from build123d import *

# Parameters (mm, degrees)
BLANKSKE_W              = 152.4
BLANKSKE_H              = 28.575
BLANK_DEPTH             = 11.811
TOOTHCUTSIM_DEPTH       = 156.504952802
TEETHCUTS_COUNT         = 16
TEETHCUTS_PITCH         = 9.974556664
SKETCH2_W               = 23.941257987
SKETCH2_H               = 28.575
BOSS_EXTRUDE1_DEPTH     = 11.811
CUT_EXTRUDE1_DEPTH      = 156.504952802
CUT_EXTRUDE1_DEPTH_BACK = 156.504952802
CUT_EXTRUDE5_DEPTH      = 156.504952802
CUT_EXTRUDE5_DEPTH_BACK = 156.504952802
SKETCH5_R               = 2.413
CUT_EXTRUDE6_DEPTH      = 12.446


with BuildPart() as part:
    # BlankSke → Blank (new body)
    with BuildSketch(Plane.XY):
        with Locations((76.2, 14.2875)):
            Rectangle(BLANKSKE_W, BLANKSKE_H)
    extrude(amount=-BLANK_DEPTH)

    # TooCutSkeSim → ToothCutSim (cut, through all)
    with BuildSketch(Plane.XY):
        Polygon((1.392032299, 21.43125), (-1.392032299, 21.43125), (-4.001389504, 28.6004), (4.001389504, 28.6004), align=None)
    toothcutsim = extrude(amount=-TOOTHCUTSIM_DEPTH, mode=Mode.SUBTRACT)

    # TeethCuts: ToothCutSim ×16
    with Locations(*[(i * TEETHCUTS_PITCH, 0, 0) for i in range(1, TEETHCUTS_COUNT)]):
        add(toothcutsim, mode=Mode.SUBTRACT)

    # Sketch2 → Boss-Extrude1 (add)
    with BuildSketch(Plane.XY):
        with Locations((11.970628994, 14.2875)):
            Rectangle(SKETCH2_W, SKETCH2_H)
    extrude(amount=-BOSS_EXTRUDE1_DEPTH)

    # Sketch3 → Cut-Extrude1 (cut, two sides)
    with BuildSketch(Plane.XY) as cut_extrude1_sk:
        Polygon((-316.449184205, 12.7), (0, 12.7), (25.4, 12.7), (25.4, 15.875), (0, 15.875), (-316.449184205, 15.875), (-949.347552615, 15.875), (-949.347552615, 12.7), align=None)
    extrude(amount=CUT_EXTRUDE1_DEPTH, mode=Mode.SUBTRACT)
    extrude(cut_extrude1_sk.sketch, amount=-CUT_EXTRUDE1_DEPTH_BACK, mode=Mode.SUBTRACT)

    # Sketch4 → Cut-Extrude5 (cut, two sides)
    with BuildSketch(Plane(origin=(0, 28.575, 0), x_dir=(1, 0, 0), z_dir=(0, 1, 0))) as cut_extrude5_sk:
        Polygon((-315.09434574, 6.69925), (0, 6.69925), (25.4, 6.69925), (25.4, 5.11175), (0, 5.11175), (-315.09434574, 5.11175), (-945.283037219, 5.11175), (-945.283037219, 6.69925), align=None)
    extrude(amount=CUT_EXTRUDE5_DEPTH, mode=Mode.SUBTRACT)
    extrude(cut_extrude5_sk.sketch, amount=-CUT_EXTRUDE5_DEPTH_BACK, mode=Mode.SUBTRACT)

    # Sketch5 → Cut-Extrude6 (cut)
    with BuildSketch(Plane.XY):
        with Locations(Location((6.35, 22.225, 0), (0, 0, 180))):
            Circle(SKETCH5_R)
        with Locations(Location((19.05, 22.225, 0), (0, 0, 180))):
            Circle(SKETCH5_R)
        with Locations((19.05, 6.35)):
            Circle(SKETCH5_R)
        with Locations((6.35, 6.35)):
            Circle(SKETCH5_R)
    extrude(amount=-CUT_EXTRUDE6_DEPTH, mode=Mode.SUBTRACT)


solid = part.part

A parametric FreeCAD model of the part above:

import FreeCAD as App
import Part
import Sketcher
from FreeCAD import Vector
Q = App.Units.Quantity

doc = App.newDocument("Part")
body = doc.addObject("PartDesign::Body", "Body")

sketch1 = body.newObject("Sketcher::SketchObject", "Sketch")
sketch1.AttachmentSupport = (doc.getObject("XY_Plane"), [""])
sketch1.MapMode = "FlatFace"
sketch1.addGeometry([
    Part.LineSegment(Vector(0, 29, 0), Vector(0, 0, 0)),
    Part.LineSegment(Vector(0, 0, 0), Vector(152, 0, 0)),
    Part.LineSegment(Vector(152, 0, 0), Vector(152, 29, 0)),
    Part.LineSegment(Vector(152, 29, 0), Vector(0, 29, 0)),
], False)
sketch1.addConstraint([
    Sketcher.Constraint("Coincident", 0, 2, 1, 1),
    Sketcher.Constraint("Coincident", 1, 2, 2, 1),
    Sketcher.Constraint("Coincident", 2, 2, 3, 1),
    Sketcher.Constraint("Coincident", 3, 2, 0, 1),
    Sketcher.Constraint("Vertical", 0),
    Sketcher.Constraint("Horizontal", 1),
    Sketcher.Constraint("Vertical", 2),
    Sketcher.Constraint("Horizontal", 3),
    Sketcher.Constraint("Coincident", 0, 2, -1, 1),
    Sketcher.Constraint("DistanceX", 1, 1, 1, 2, Q("6 in")),
    Sketcher.Constraint("DistanceY", 0, 2, 0, 1, Q("1.125 in")),
])
pad1 = body.newObject("PartDesign::Pad", "Pad")
pad1.Profile = sketch1
pad1.Length = Q("0.465 in")
pad1.Reversed = True

sketch2 = body.newObject("Sketcher::SketchObject", "Sketch001")
sketch2.AttachmentSupport = (doc.getObject("XY_Plane"), [""])
sketch2.MapMode = "FlatFace"
sketch2.addGeometry([
    Part.LineSegment(Vector(-1.4, 21.4, 0), Vector(1.4, 21.4, 0)),
    Part.LineSegment(Vector(1.4, 21.4, 0), Vector(4, 28.6, 0)),
    Part.LineSegment(Vector(4, 28.6, 0), Vector(-4, 28.6, 0)),
    Part.LineSegment(Vector(-4, 28.6, 0), Vector(-1.4, 21.4, 0)),
], False)
sketch2.addConstraint([
    Sketcher.Constraint("Coincident", 0, 2, 1, 1),
    Sketcher.Constraint("Coincident", 1, 2, 2, 1),
    Sketcher.Constraint("Coincident", 2, 2, 3, 1),
    Sketcher.Constraint("Coincident", 3, 2, 0, 1),
    Sketcher.Constraint("Horizontal", 0),
    Sketcher.Constraint("Horizontal", 2),
    Sketcher.Constraint("Equal", 1, 3),
    Sketcher.Constraint("Angle", 1, Q("70 deg")),
    Sketcher.Constraint("DistanceY", -1, 1, 0, 2, Q("0.84375 in")),
    Sketcher.Constraint("DistanceY", -1, 1, 1, 2, Q("1.126 in")),
    Sketcher.Constraint("DistanceX", 2, 2, 2, 1, 8.002779),
    Sketcher.Constraint("DistanceX", -1, 1, 1, 2, 4.00139),
])
pocket1 = body.newObject("PartDesign::Pocket", "Pocket")
pocket1.Profile = sketch2
pocket1.Type = "ThroughAll"
doc.recompute()

linearpattern = body.newObject("PartDesign::LinearPattern", "LinearPattern")
linearpattern.Originals = [pocket1]
linearpattern.Direction = (doc.getObject("X_Axis"), [""])
linearpattern.Mode = "offset"
linearpattern.Offset = 9.974557
linearpattern.Occurrences = 16
body.Tip = linearpattern

sketch3 = body.newObject("Sketcher::SketchObject", "Sketch002")
sketch3.AttachmentSupport = (doc.getObject("XY_Plane"), [""])
sketch3.MapMode = "FlatFace"
sketch3.addGeometry([
    Part.LineSegment(Vector(0, 29, 0), Vector(0, 0, 0)),
    Part.LineSegment(Vector(0, 0, 0), Vector(24, 0, 0)),
    Part.LineSegment(Vector(24, 0, 0), Vector(24, 29, 0)),
    Part.LineSegment(Vector(24, 29, 0), Vector(0, 29, 0)),
], False)
sketch3.addConstraint([
    Sketcher.Constraint("Coincident", 0, 2, 1, 1),
    Sketcher.Constraint("Coincident", 1, 2, 2, 1),
    Sketcher.Constraint("Coincident", 2, 2, 3, 1),
    Sketcher.Constraint("Coincident", 3, 2, 0, 1),
    Sketcher.Constraint("Vertical", 0),
    Sketcher.Constraint("Horizontal", 1),
    Sketcher.Constraint("Vertical", 2),
    Sketcher.Constraint("Horizontal", 3),
    Sketcher.Constraint("Coincident", 0, 2, -1, 1),
    Sketcher.Constraint("DistanceY", 0, 2, 0, 1, Q("1.125 in")),
    Sketcher.Constraint("DistanceX", 1, 1, 1, 2, 23.941258),
])
pad2 = body.newObject("PartDesign::Pad", "Pad001")
pad2.Profile = sketch3
pad2.Length = Q("0.465 in")
pad2.Reversed = True

sketch4 = body.newObject("Sketcher::SketchObject", "Sketch003")
sketch4.AttachmentSupport = (doc.getObject("XY_Plane"), [""])
sketch4.MapMode = "FlatFace"
sketch4.addGeometry([
    Part.LineSegment(Vector(25.4, 12.7, 0), Vector(25.4, 15.9, 0)),
    Part.LineSegment(Vector(25.4, 15.9, 0), Vector(-949.3, 15.9, 0)),
    Part.LineSegment(Vector(-949.3, 15.9, 0), Vector(-949.3, 12.7, 0)),
    Part.LineSegment(Vector(-949.3, 12.7, 0), Vector(25.4, 12.7, 0)),
], False)
sketch4.addConstraint([
    Sketcher.Constraint("Coincident", 0, 2, 1, 1),
    Sketcher.Constraint("Coincident", 1, 2, 2, 1),
    Sketcher.Constraint("Coincident", 2, 2, 3, 1),
    Sketcher.Constraint("Coincident", 3, 2, 0, 1),
    Sketcher.Constraint("Vertical", 0),
    Sketcher.Constraint("Horizontal", 1),
    Sketcher.Constraint("Vertical", 2),
    Sketcher.Constraint("Horizontal", 3),
    Sketcher.Constraint("DistanceX", -1, 1, 0, 2, Q("1 in")),
    Sketcher.Constraint("DistanceY", -1, 1, 2, 2, Q("0.5 in")),
    Sketcher.Constraint("DistanceY", 0, 1, 0, 2, Q("0.125 in")),
    Sketcher.Constraint("DistanceX", 1, 2, 1, 1, 974.747553),
])
pocket2 = body.newObject("PartDesign::Pocket", "Pocket001")
pocket2.Profile = sketch4
pocket2.Type = "ThroughAll"
pocket2.Midplane = True

sketch5 = body.newObject("Sketcher::SketchObject", "Sketch004")
sketch5.AttachmentSupport = (doc.getObject("XZ_Plane"), [""])
sketch5.MapMode = "FlatFace"
sketch5.AttachmentOffset = App.Placement(Vector(0, 0, -1.125 * 25.4), App.Rotation())
sketch5.addGeometry([
    Part.LineSegment(Vector(25.4, -6.7, 0), Vector(-945.3, -6.7, 0)),
    Part.LineSegment(Vector(-945.3, -6.7, 0), Vector(-945.3, -5.1, 0)),
    Part.LineSegment(Vector(-945.3, -5.1, 0), Vector(25.4, -5.1, 0)),
    Part.LineSegment(Vector(25.4, -5.1, 0), Vector(25.4, -6.7, 0)),
], False)
sketch5.addConstraint([
    Sketcher.Constraint("Coincident", 0, 2, 1, 1),
    Sketcher.Constraint("Coincident", 1, 2, 2, 1),
    Sketcher.Constraint("Coincident", 2, 2, 3, 1),
    Sketcher.Constraint("Coincident", 3, 2, 0, 1),
    Sketcher.Constraint("Horizontal", 0),
    Sketcher.Constraint("Vertical", 1),
    Sketcher.Constraint("Horizontal", 2),
    Sketcher.Constraint("Vertical", 3),
    Sketcher.Constraint("DistanceX", -1, 1, 2, 2, Q("1 in")),
    Sketcher.Constraint("DistanceY", 1, 1, 1, 2, Q("0.0625 in")),
    Sketcher.Constraint("DistanceX", 0, 2, 0, 1, 970.683037),
    Sketcher.Constraint("DistanceY", 0, 2, -1, 1, 6.69925),
])
pocket3 = body.newObject("PartDesign::Pocket", "Pocket002")
pocket3.Profile = sketch5
pocket3.Type = "ThroughAll"
pocket3.Midplane = True

sketch6 = body.newObject("Sketcher::SketchObject", "Sketch005")
sketch6.AttachmentSupport = (doc.getObject("XY_Plane"), [""])
sketch6.MapMode = "FlatFace"
sketch6.addGeometry([
    Part.Circle(Vector(6.3, 22.2, 0), Vector(0, 0, 1), 2.4),
    Part.Circle(Vector(19.1, 22.2, 0), Vector(0, 0, 1), 2.4),
    Part.Circle(Vector(19.1, 6.3, 0), Vector(0, 0, 1), 2.4),
    Part.Circle(Vector(6.3, 6.3, 0), Vector(0, 0, 1), 2.4),
], False)
sketch6.addConstraint([
    Sketcher.Constraint("Equal", 0, 1),
    Sketcher.Constraint("Equal", 1, 2),
    Sketcher.Constraint("Equal", 2, 3),
    Sketcher.Constraint("Horizontal", 0, 3, 1, 3),
    Sketcher.Constraint("Horizontal", 2, 3, 3, 3),
    Sketcher.Constraint("Vertical", 1, 3, 2, 3),
    Sketcher.Constraint("Vertical", 0, 3, 3, 3),
    Sketcher.Constraint("Diameter", 0, Q("0.19 in")),
    Sketcher.Constraint("DistanceX", 0, 3, 1, 3, Q("0.5 in")),
    Sketcher.Constraint("DistanceX", -1, 1, 0, 3, Q("0.25 in")),
    Sketcher.Constraint("DistanceY", -1, 1, 2, 3, Q("0.25 in")),
    Sketcher.Constraint("DistanceY", -1, 1, 0, 3, Q("0.875 in")),
])
pocket4 = body.newObject("PartDesign::Pocket", "Pocket003")
pocket4.Profile = sketch6
pocket4.Length = Q("0.49 in")

doc.recompute()
